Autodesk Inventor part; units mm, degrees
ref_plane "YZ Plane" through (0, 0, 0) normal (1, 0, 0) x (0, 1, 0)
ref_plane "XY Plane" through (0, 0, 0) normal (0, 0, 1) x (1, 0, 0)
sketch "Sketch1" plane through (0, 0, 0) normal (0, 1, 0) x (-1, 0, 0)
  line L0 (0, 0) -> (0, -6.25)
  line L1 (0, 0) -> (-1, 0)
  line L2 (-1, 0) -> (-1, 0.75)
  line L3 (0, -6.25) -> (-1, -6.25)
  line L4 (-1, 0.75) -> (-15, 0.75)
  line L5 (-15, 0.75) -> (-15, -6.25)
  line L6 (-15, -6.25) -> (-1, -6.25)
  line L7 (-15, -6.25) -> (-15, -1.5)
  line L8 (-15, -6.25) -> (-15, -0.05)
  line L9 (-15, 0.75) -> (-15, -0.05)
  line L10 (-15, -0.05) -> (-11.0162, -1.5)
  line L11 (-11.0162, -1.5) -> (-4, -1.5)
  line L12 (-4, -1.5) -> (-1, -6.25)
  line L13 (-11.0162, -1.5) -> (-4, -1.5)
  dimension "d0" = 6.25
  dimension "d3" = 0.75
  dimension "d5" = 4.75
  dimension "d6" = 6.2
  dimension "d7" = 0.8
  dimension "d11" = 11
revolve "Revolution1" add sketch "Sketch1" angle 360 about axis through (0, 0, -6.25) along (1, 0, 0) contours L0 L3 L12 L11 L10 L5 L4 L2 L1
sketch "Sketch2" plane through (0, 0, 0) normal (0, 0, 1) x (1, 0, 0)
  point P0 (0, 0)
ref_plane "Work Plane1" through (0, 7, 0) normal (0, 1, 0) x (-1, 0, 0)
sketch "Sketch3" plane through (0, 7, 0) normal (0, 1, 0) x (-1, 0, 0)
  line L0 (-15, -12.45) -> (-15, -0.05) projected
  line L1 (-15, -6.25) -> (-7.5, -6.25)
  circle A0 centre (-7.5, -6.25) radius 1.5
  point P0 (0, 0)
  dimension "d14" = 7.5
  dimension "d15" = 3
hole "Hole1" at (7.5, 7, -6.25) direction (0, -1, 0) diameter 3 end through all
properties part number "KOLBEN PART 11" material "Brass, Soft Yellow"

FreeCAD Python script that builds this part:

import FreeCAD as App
import Part
import Sketcher

V = App.Vector
Q = App.Units.Quantity

doc = App.newDocument("Part")
params = doc.addObject("Spreadsheet::Sheet", "Params")
for row, (alias, value) in enumerate([
    ("sketch1_height", "0.8 mm"),
    ("sketch1_height2", "6.25 mm"),
    ("sketch1_height3", "0.75 mm"),
    ("sketch1_width", "1 mm"),
    ("sketch1_width2", "14 mm"),
    ("revolution_angle", "360 deg"),
    ("sketch2_diameter", "3 mm"),
    ("hole_diameter", "3 mm"),
], start=1):
    params.set(f"A{row}", alias)
    params.set(f"B{row}", "=" + value)
    params.setAlias(f"B{row}", alias)

body = doc.addObject("PartDesign::Body", "Body")

sketch1 = body.newObject("Sketcher::SketchObject", "Sketch")
sketch1.AttachmentSupport = (doc.getObject("XZ_Plane"), [""])
sketch1.MapMode = "FlatFace"
sketch1.addGeometry([
    Part.LineSegment(V(0, -6.2, 0), V(0, 0, 0)),
    Part.LineSegment(V(0, 0, 0), V(1, 0, 0)),
    Part.LineSegment(V(1, 0, 0), V(1, 0.8, 0)),
    Part.LineSegment(V(1, 0.8, 0), V(15, 0.8, 0)),
    Part.LineSegment(V(15, 0.8, 0), V(15, -0.1, 0)),
    Part.LineSegment(V(15, -0.1, 0), V(11, -1.5, 0)),
    Part.LineSegment(V(11, -1.5, 0), V(4, -1.5, 0)),
    Part.LineSegment(V(4, -1.5, 0), V(1, -6.2, 0)),
    Part.LineSegment(V(1, -6.2, 0), V(0, -6.2, 0)),
], False)
sketch1.addGeometry(Part.LineSegment(V(0, -6.2, 0), V(15, -6.2, 0)), True)
sketch1.addConstraint([
    Sketcher.Constraint("Coincident", 0, 2, 1, 1),
    Sketcher.Constraint("Coincident", 1, 2, 2, 1),
    Sketcher.Constraint("Coincident", 2, 2, 3, 1),
    Sketcher.Constraint("Coincident", 3, 2, 4, 1),
    Sketcher.Constraint("Coincident", 4, 2, 5, 1),
    Sketcher.Constraint("Coincident", 5, 2, 6, 1),
    Sketcher.Constraint("Coincident", 6, 2, 7, 1),
    Sketcher.Constraint("Coincident", 7, 2, 8, 1),
    Sketcher.Constraint("Coincident", 8, 2, 0, 1),
    Sketcher.Constraint("Vertical", 0),
    Sketcher.Constraint("Horizontal", 1),
    Sketcher.Constraint("Vertical", 2),
    Sketcher.Constraint("Horizontal", 3),
    Sketcher.Constraint("Vertical", 4),
    Sketcher.Constraint("Horizontal", 6),
    Sketcher.Constraint("Horizontal", 8),
    Sketcher.Constraint("Horizontal", 9),
    Sketcher.Constraint("Coincident", 0, 2, -1, 1),
    Sketcher.Constraint("Coincident", 9, 1, 8, 2),
    Sketcher.Constraint("Vertical", 2, 2, 7, 2),
    Sketcher.Constraint("Vertical", 4, 2, 9, 2),
    Sketcher.Constraint("DistanceY", 4, 2, 4, 1, 0.8),
    Sketcher.Constraint("DistanceX", 6, 2, 4, 2, 11.0),
    Sketcher.Constraint("DistanceY", 0, 1, 0, 2, 6.25),
    Sketcher.Constraint("DistanceY", 2, 1, 2, 2, 0.75),
    Sketcher.Constraint("DistanceX", 1, 1, 1, 2, 1.0),
    Sketcher.Constraint("DistanceX", 3, 1, 3, 2, 14.0),
    Sketcher.Constraint("Angle", 5, Q("-159.9998 deg")),
    Sketcher.Constraint("DistanceY", 7, 2, 6, 2, 4.75),
])
sketch1.setExpression("Constraints[21]", "Params.sketch1_height")
sketch1.setExpression("Constraints[23]", "Params.sketch1_height2")
sketch1.setExpression("Constraints[24]", "Params.sketch1_height3")
sketch1.setExpression("Constraints[25]", "Params.sketch1_width")
sketch1.setExpression("Constraints[26]", "Params.sketch1_width2")
revolution = body.newObject("PartDesign::Revolution", "Revolution")
revolution.Profile = sketch1
revolution.ReferenceAxis = (sketch1, ["Axis0"])
revolution.setExpression("Angle", "Params.revolution_angle")

sketch2 = body.newObject("Sketcher::SketchObject", "Sketch001")
sketch2.AttachmentSupport = (doc.getObject("XZ_Plane"), [""])
sketch2.MapMode = "FlatFace"
sketch2.AttachmentOffset = App.Placement(V(0, 0, -7), App.Rotation())
sketch2.addGeometry(Part.Circle(V(7.5, -6.2, 0), V(0, 0, 1), 1.5), False)
sketch2.addConstraint([
    Sketcher.Constraint("Diameter", 0, 3.0),
    Sketcher.Constraint("DistanceX", -1, 1, 0, 3, 7.5),
    Sketcher.Constraint("DistanceY", 0, 3, -1, 1, 6.25),
])
sketch2.setExpression("Constraints[0]", "Params.sketch2_diameter")
doc.recompute()
hole = body.newObject("PartDesign::Hole", "Hole")
hole.Profile = sketch2
hole.ThreadType = "None"
hole.setExpression("Diameter", "Params.hole_diameter")
hole.DepthType = "ThroughAll"
hole.Reversed = True

doc.recompute()
